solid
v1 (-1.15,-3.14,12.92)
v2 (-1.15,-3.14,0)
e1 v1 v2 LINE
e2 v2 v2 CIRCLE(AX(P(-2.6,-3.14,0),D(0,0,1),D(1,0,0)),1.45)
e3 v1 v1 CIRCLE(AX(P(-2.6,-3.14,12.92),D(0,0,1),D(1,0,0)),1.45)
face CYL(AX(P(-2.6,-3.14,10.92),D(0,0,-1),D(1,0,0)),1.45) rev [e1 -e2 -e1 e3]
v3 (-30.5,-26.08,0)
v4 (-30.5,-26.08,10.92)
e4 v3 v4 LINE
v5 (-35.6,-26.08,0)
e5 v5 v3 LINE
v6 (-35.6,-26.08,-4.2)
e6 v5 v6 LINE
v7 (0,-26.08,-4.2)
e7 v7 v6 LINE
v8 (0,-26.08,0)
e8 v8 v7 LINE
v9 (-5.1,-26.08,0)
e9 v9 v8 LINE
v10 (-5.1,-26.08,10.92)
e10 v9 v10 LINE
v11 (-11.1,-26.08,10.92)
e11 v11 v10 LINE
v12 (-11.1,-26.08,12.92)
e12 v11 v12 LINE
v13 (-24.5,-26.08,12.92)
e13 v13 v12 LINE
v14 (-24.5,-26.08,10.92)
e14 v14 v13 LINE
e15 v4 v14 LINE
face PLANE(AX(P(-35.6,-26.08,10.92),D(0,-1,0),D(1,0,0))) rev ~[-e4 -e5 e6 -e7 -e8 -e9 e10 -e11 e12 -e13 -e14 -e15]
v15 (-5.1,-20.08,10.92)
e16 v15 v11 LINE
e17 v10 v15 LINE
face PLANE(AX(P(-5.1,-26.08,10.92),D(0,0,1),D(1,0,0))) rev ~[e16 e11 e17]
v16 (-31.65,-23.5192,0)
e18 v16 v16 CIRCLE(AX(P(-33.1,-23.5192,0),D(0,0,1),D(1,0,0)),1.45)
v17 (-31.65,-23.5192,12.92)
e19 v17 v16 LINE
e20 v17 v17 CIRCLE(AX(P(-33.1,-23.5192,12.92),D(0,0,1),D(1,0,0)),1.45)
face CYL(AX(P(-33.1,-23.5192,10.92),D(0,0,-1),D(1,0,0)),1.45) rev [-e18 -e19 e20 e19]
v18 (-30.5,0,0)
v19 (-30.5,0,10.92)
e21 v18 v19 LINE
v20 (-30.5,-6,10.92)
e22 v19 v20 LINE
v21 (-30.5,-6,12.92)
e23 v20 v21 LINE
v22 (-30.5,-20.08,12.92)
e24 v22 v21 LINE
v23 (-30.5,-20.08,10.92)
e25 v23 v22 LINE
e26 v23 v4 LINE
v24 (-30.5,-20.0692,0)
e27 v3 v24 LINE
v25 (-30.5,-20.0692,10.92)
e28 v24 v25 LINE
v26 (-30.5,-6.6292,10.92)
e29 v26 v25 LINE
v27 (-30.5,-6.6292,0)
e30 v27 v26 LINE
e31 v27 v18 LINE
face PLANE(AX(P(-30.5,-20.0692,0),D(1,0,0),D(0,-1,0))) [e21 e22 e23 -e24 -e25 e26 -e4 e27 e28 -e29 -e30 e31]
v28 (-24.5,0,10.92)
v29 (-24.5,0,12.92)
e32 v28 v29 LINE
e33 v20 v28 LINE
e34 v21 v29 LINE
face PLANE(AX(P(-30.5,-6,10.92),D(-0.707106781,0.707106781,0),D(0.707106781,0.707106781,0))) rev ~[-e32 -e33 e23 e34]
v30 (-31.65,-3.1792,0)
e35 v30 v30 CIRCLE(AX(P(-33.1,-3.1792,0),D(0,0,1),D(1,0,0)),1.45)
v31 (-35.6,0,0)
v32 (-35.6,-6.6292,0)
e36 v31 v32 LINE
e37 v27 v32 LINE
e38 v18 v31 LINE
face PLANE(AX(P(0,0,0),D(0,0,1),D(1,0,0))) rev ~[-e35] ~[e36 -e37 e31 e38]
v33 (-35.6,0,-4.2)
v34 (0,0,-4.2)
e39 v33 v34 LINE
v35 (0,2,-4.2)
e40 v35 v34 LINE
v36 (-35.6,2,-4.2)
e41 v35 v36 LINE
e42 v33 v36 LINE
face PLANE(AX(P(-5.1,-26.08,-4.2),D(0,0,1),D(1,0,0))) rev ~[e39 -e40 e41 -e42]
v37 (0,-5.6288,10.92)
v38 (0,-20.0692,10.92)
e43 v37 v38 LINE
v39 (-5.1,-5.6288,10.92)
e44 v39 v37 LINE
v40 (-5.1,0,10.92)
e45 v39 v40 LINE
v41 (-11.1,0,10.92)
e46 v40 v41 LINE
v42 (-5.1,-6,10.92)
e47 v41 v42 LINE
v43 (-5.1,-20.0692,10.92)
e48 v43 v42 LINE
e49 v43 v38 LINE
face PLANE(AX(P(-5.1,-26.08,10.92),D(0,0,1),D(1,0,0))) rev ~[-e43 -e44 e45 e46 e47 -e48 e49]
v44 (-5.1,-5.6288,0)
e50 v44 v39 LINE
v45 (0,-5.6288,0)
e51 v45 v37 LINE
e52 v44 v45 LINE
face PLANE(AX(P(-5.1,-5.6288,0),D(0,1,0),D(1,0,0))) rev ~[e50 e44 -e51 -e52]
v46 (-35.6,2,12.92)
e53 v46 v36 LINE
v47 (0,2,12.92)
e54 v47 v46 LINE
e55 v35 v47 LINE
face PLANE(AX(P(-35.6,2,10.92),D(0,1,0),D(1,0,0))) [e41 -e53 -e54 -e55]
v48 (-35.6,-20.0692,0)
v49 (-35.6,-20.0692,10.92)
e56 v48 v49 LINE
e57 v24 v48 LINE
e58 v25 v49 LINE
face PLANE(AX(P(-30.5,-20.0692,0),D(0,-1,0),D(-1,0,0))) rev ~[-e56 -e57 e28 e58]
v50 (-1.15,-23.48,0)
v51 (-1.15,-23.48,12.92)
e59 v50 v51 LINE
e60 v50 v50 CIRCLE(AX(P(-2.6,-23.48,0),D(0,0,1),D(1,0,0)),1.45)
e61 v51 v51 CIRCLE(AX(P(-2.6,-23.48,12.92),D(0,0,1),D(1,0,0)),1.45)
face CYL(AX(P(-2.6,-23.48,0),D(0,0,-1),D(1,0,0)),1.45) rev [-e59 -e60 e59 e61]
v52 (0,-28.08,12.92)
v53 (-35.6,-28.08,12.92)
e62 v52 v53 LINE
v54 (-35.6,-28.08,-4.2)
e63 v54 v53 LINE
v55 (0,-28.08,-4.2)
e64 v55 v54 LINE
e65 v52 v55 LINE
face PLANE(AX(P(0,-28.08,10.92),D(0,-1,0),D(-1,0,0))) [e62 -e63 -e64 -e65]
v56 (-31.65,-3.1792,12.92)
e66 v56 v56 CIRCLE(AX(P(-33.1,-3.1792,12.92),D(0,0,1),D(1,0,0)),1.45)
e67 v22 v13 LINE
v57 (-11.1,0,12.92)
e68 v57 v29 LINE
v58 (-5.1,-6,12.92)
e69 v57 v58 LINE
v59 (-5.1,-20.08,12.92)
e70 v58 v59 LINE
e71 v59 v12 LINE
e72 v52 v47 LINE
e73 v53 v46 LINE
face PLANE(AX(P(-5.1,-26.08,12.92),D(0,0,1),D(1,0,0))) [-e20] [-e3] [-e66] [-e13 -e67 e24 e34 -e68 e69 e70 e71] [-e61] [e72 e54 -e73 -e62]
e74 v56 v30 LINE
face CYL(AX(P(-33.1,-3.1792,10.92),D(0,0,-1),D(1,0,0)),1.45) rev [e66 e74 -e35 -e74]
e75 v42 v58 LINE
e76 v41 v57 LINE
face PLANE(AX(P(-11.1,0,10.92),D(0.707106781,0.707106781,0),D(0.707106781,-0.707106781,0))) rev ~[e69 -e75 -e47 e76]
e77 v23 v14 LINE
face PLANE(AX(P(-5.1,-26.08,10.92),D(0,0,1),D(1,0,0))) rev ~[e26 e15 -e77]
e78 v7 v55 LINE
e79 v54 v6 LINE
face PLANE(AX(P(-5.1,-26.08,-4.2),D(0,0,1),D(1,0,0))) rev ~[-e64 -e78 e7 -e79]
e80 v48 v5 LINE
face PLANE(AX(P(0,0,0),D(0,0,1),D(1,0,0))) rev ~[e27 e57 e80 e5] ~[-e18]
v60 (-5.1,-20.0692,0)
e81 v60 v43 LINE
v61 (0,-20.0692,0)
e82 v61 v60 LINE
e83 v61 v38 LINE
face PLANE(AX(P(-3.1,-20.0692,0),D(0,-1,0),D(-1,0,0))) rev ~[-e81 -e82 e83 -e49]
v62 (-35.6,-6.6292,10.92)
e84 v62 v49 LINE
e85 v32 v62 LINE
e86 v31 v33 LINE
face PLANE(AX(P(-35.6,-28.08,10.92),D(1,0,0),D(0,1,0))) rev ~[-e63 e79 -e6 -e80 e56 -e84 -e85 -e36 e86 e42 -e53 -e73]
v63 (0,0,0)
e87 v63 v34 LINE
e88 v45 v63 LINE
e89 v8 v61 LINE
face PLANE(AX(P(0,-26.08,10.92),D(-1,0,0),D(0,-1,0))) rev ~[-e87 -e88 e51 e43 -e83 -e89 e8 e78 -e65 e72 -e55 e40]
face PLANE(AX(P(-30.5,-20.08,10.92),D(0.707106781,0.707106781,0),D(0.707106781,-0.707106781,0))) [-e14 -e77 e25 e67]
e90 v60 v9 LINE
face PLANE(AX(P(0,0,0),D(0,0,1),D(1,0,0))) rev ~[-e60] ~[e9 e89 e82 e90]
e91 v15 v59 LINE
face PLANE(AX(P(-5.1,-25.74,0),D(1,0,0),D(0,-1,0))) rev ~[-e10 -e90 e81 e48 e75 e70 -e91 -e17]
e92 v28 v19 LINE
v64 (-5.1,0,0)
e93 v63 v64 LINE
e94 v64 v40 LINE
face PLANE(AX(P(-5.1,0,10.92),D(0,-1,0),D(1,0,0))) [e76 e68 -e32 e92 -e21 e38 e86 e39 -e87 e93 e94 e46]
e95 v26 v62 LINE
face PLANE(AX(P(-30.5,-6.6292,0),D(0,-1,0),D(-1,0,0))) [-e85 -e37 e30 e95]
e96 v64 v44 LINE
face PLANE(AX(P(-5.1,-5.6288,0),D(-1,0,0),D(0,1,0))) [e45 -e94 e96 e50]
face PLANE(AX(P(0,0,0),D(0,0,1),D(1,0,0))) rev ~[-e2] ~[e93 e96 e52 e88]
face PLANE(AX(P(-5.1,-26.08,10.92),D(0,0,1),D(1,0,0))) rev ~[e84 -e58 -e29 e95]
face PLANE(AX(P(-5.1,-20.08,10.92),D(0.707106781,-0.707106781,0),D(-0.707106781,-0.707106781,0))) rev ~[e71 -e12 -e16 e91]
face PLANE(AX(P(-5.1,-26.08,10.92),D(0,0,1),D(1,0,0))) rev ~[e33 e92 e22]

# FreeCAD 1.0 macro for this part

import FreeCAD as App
import Part
import Sketcher

V = App.Vector


def add_polygon(sketch, points):
    """Adds a closed chain of lines whose ends are joined by coincident constraints."""
    first, n = sketch.GeometryCount, len(points)
    for a, b in zip(points, points[1:] + points[:1]):
        sketch.addGeometry(Part.LineSegment(App.Vector(*a, 0), App.Vector(*b, 0)), False)
    for i in range(n):
        sketch.addConstraint(Sketcher.Constraint("Coincident", first + i, 2, first + (i + 1) % n, 1))

doc = App.newDocument("Part")
body = doc.addObject("PartDesign::Body", "Body")
body.AllowCompound = True

# Sketch on XY plane
sketch1 = body.newObject("Sketcher::SketchObject", "Sketch")
sketch1.AttachmentSupport = (doc.getObject("XY_Plane"), [""])
sketch1.MapMode = "FlatFace"
add_polygon(sketch1, [(-5.1, -26.08), (0, -26.08), (0, -20.0692), (-5.1, -20.0692)])  # lines 0-3
sketch1.addGeometry(Part.Circle(V(-2.6, -23.48, 0), V(0, 0, 1), 1.45), False)  # 4
add_polygon(sketch1, [(-35.6, -26.08), (-30.5, -26.08), (-30.5, -20.0692), (-35.6, -20.0692)])  # lines 5-8
sketch1.addGeometry(Part.Circle(V(-33.1, -23.5192, 0), V(0, 0, 1), 1.45), False)  # 9
add_polygon(sketch1, [(-5.1, -5.6288), (0, -5.6288), (0, 0), (-5.1, 0)])  # lines 10-13
sketch1.addGeometry(Part.Circle(V(-2.6, -3.14, 0), V(0, 0, 1), 1.45), False)  # 14
add_polygon(sketch1, [(-35.6, 0), (-35.6, -6.6292), (-30.5, -6.6292), (-30.5, 0)])  # lines 15-18
sketch1.addGeometry(Part.Circle(V(-33.1, -3.1792, 0), V(0, 0, 1), 1.45), False)  # 19
sketch1.addConstraint([
    Sketcher.Constraint("Horizontal", 0),
    Sketcher.Constraint("Vertical", 1),
    Sketcher.Constraint("Horizontal", 2),
    Sketcher.Constraint("Vertical", 3),
    Sketcher.Constraint("Horizontal", 5),
    Sketcher.Constraint("Vertical", 6),
    Sketcher.Constraint("Horizontal", 7),
    Sketcher.Constraint("Vertical", 8),
    Sketcher.Constraint("Horizontal", 10),
    Sketcher.Constraint("Vertical", 11),
    Sketcher.Constraint("Horizontal", 12),
    Sketcher.Constraint("Vertical", 13),
    Sketcher.Constraint("Vertical", 15),
    Sketcher.Constraint("Horizontal", 16),
    Sketcher.Constraint("Vertical", 17),
    Sketcher.Constraint("Horizontal", 18),
    Sketcher.Constraint("Coincident", 11, 2, -1, 1),
    Sketcher.Constraint("Equal", 4, 9),
    Sketcher.Constraint("Equal", 9, 14),
    Sketcher.Constraint("Equal", 14, 19),
    Sketcher.Constraint("PointOnObject", 0, 2, -2),
    Sketcher.Constraint("PointOnObject", 17, 2, -1),
    Sketcher.Constraint("Horizontal", 3, 2, 5, 2),
    Sketcher.Constraint("Horizontal", 2, 2, 6, 2),
    Sketcher.Constraint("Vertical", 4, 3, 14, 3),
    Sketcher.Constraint("Vertical", 9, 3, 19, 3),
    Sketcher.Constraint("Vertical", 3, 2, 12, 2),
    Sketcher.Constraint("Vertical", 8, 2, 15, 2),
    Sketcher.Constraint("Vertical", 6, 2, 16, 2),
    Sketcher.Constraint("Equal", 2, 5),
    Sketcher.Constraint("Diameter", 4, 2.9),
    Sketcher.Constraint("DistanceX", 0, 1, 0, 2, 5.1),
    Sketcher.Constraint("DistanceX", 9, 3, 2, 2, 28.0),
    Sketcher.Constraint("DistanceX", 4, 3, -1, 1, 2.6),
    Sketcher.Constraint("DistanceX", 5, 2, -1, 1, 30.5),
    Sketcher.Constraint("DistanceY", 0, 2, 4, 3, 2.6),
    Sketcher.Constraint("DistanceY", 4, 3, -1, 1, 23.48),
    Sketcher.Constraint("DistanceY", 14, 3, -1, 1, 3.14),
    Sketcher.Constraint("DistanceY", 9, 3, 19, 3, 20.34),
    Sketcher.Constraint("DistanceY", 9, 3, 1, 2, 3.45),
    Sketcher.Constraint("DistanceY", 15, 2, 19, 3, 3.45),
    Sketcher.Constraint("DistanceY", 1, 1, 1, 2, 6.0108),
    Sketcher.Constraint("DistanceY", 11, 1, 11, 2, 5.6288),
])
pad1 = body.newObject("PartDesign::Pad", "Pad")
pad1.Profile = sketch1
pad1.Length = 10.92

# Sketch on XY plane
sketch2 = body.newObject("Sketcher::SketchObject", "Sketch001")
sketch2.AttachmentSupport = (doc.getObject("XY_Plane"), [""])
sketch2.MapMode = "FlatFace"
sketch2.AttachmentOffset = App.Placement(V(0, 0, 10.92), App.Rotation())
add_polygon(sketch2, [(-35.6, -28.08), (0, -28.08), (0, 2), (-35.6, 2)])  # lines 0-3
add_polygon(sketch2, [(-30.5, -6), (-24.5, 0), (-11.1, 0), (-5.1, -6), (-5.1, -20.08), (-11.1, -26.08), (-24.5, -26.08), (-30.5, -20.08)])  # lines 4-11
sketch2.addGeometry(Part.Circle(V(-33.1, -23.5192, 0), V(0, 0, 1), 1.45), False)  # 12
sketch2.addGeometry(Part.Circle(V(-33.1, -3.1792, 0), V(0, 0, 1), 1.45), False)  # 13
sketch2.addGeometry(Part.Circle(V(-2.6, -23.48, 0), V(0, 0, 1), 1.45), False)  # 14
sketch2.addGeometry(Part.Circle(V(-2.6, -3.14, 0), V(0, 0, 1), 1.45), False)  # 15
sketch2.addConstraint([
    Sketcher.Constraint("Horizontal", 0),
    Sketcher.Constraint("Vertical", 1),
    Sketcher.Constraint("Horizontal", 2),
    Sketcher.Constraint("Vertical", 3),
    Sketcher.Constraint("Horizontal", 5),
    Sketcher.Constraint("Vertical", 7),
    Sketcher.Constraint("Horizontal", 9),
    Sketcher.Constraint("Vertical", 11),
    Sketcher.Constraint("Equal", 12, 13),
    Sketcher.Constraint("Equal", 13, 14),
    Sketcher.Constraint("Equal", 14, 15),
    Sketcher.Constraint("PointOnObject", 0, 2, -2),
    Sketcher.Constraint("PointOnObject", 4, 2, -1),
    Sketcher.Constraint("Perpendicular", 4, 6),
    Sketcher.Constraint("Perpendicular", 6, 8),
    Sketcher.Constraint("Perpendicular", 8, 10),
    Sketcher.Constraint("Horizontal", 7, 2, 10, 2),
    Sketcher.Constraint("Horizontal", 6, 2, 11, 2),
    Sketcher.Constraint("Vertical", 12, 3, 13, 3),
    Sketcher.Constraint("Vertical", 14, 3, 15, 3),
    Sketcher.Constraint("Vertical", 5, 2, 8, 2),
    Sketcher.Constraint("Vertical", 4, 2, 9, 2),
    Sketcher.Constraint("DistanceY", -1, 1, 1, 2, 2.0),
    Sketcher.Constraint("DistanceY", 6, 2, -1, 1, 6.0),
    Sketcher.Constraint("DistanceY", 0, 2, 8, 2, 2.0),
    Sketcher.Constraint("Diameter", 12, 2.9),
    Sketcher.Constraint("DistanceX", 0, 1, 0, 2, 35.6),
    Sketcher.Constraint("DistanceX", 5, 1, 5, 2, 13.4),
    Sketcher.Constraint("DistanceX", 2, 2, 15, 3, 33.0),
    Sketcher.Constraint("DistanceX", 13, 3, 5, 2, 22.0),
    Sketcher.Constraint("DistanceY", 1, 1, 1, 2, 30.08),
    Sketcher.Constraint("DistanceX", 12, 3, -1, 1, 33.1),
    Sketcher.Constraint("DistanceY", 0, 2, 14, 3, 4.6),
    Sketcher.Constraint("DistanceY", 15, 3, -1, 1, 3.14),
    Sketcher.Constraint("DistanceY", 12, 3, 13, 3, 20.34),
    Sketcher.Constraint("DistanceY", 12, 3, -1, 1, 23.5192),
])
pad2 = body.newObject("PartDesign::Pad", "Pad001")
pad2.Profile = sketch2
pad2.Length = 2

# Sketch on XY plane
sketch3 = body.newObject("Sketcher::SketchObject", "Sketch002")
sketch3.AttachmentSupport = (doc.getObject("XY_Plane"), [""])
sketch3.MapMode = "FlatFace"
sketch3.AttachmentOffset = App.Placement(V(0, 0, 10.92), App.Rotation())
add_polygon(sketch3, [(0, -26.08), (-35.6, -26.08), (-35.6, -28.08), (0, -28.08)])  # lines 0-3
add_polygon(sketch3, [(-35.6, 2), (-35.6, 0), (0, 0), (0, 2)])  # lines 4-7
sketch3.addConstraint([
    Sketcher.Constraint("Horizontal", 0),
    Sketcher.Constraint("Vertical", 1),
    Sketcher.Constraint("Horizontal", 2),
    Sketcher.Constraint("Vertical", 3),
    Sketcher.Constraint("Vertical", 4),
    Sketcher.Constraint("Horizontal", 5),
    Sketcher.Constraint("Vertical", 6),
    Sketcher.Constraint("Horizontal", 7),
    Sketcher.Constraint("Coincident", 5, 2, -1, 1),
    Sketcher.Constraint("PointOnObject", 2, 2, -2),
    Sketcher.Constraint("Vertical", 1, 2, 4, 2),
    Sketcher.Constraint("Equal", 3, 4),
    Sketcher.Constraint("DistanceY", 1, 2, 1, 1, 2.0),
    Sketcher.Constraint("DistanceX", 0, 2, 0, 1, 35.6),
    Sketcher.Constraint("DistanceY", 0, 2, -1, 1, 26.08),
])
pad3 = body.newObject("PartDesign::Pad", "Pad002")
pad3.Profile = sketch3
pad3.Length = 15.12
pad3.Reversed = True

doc.recompute()
